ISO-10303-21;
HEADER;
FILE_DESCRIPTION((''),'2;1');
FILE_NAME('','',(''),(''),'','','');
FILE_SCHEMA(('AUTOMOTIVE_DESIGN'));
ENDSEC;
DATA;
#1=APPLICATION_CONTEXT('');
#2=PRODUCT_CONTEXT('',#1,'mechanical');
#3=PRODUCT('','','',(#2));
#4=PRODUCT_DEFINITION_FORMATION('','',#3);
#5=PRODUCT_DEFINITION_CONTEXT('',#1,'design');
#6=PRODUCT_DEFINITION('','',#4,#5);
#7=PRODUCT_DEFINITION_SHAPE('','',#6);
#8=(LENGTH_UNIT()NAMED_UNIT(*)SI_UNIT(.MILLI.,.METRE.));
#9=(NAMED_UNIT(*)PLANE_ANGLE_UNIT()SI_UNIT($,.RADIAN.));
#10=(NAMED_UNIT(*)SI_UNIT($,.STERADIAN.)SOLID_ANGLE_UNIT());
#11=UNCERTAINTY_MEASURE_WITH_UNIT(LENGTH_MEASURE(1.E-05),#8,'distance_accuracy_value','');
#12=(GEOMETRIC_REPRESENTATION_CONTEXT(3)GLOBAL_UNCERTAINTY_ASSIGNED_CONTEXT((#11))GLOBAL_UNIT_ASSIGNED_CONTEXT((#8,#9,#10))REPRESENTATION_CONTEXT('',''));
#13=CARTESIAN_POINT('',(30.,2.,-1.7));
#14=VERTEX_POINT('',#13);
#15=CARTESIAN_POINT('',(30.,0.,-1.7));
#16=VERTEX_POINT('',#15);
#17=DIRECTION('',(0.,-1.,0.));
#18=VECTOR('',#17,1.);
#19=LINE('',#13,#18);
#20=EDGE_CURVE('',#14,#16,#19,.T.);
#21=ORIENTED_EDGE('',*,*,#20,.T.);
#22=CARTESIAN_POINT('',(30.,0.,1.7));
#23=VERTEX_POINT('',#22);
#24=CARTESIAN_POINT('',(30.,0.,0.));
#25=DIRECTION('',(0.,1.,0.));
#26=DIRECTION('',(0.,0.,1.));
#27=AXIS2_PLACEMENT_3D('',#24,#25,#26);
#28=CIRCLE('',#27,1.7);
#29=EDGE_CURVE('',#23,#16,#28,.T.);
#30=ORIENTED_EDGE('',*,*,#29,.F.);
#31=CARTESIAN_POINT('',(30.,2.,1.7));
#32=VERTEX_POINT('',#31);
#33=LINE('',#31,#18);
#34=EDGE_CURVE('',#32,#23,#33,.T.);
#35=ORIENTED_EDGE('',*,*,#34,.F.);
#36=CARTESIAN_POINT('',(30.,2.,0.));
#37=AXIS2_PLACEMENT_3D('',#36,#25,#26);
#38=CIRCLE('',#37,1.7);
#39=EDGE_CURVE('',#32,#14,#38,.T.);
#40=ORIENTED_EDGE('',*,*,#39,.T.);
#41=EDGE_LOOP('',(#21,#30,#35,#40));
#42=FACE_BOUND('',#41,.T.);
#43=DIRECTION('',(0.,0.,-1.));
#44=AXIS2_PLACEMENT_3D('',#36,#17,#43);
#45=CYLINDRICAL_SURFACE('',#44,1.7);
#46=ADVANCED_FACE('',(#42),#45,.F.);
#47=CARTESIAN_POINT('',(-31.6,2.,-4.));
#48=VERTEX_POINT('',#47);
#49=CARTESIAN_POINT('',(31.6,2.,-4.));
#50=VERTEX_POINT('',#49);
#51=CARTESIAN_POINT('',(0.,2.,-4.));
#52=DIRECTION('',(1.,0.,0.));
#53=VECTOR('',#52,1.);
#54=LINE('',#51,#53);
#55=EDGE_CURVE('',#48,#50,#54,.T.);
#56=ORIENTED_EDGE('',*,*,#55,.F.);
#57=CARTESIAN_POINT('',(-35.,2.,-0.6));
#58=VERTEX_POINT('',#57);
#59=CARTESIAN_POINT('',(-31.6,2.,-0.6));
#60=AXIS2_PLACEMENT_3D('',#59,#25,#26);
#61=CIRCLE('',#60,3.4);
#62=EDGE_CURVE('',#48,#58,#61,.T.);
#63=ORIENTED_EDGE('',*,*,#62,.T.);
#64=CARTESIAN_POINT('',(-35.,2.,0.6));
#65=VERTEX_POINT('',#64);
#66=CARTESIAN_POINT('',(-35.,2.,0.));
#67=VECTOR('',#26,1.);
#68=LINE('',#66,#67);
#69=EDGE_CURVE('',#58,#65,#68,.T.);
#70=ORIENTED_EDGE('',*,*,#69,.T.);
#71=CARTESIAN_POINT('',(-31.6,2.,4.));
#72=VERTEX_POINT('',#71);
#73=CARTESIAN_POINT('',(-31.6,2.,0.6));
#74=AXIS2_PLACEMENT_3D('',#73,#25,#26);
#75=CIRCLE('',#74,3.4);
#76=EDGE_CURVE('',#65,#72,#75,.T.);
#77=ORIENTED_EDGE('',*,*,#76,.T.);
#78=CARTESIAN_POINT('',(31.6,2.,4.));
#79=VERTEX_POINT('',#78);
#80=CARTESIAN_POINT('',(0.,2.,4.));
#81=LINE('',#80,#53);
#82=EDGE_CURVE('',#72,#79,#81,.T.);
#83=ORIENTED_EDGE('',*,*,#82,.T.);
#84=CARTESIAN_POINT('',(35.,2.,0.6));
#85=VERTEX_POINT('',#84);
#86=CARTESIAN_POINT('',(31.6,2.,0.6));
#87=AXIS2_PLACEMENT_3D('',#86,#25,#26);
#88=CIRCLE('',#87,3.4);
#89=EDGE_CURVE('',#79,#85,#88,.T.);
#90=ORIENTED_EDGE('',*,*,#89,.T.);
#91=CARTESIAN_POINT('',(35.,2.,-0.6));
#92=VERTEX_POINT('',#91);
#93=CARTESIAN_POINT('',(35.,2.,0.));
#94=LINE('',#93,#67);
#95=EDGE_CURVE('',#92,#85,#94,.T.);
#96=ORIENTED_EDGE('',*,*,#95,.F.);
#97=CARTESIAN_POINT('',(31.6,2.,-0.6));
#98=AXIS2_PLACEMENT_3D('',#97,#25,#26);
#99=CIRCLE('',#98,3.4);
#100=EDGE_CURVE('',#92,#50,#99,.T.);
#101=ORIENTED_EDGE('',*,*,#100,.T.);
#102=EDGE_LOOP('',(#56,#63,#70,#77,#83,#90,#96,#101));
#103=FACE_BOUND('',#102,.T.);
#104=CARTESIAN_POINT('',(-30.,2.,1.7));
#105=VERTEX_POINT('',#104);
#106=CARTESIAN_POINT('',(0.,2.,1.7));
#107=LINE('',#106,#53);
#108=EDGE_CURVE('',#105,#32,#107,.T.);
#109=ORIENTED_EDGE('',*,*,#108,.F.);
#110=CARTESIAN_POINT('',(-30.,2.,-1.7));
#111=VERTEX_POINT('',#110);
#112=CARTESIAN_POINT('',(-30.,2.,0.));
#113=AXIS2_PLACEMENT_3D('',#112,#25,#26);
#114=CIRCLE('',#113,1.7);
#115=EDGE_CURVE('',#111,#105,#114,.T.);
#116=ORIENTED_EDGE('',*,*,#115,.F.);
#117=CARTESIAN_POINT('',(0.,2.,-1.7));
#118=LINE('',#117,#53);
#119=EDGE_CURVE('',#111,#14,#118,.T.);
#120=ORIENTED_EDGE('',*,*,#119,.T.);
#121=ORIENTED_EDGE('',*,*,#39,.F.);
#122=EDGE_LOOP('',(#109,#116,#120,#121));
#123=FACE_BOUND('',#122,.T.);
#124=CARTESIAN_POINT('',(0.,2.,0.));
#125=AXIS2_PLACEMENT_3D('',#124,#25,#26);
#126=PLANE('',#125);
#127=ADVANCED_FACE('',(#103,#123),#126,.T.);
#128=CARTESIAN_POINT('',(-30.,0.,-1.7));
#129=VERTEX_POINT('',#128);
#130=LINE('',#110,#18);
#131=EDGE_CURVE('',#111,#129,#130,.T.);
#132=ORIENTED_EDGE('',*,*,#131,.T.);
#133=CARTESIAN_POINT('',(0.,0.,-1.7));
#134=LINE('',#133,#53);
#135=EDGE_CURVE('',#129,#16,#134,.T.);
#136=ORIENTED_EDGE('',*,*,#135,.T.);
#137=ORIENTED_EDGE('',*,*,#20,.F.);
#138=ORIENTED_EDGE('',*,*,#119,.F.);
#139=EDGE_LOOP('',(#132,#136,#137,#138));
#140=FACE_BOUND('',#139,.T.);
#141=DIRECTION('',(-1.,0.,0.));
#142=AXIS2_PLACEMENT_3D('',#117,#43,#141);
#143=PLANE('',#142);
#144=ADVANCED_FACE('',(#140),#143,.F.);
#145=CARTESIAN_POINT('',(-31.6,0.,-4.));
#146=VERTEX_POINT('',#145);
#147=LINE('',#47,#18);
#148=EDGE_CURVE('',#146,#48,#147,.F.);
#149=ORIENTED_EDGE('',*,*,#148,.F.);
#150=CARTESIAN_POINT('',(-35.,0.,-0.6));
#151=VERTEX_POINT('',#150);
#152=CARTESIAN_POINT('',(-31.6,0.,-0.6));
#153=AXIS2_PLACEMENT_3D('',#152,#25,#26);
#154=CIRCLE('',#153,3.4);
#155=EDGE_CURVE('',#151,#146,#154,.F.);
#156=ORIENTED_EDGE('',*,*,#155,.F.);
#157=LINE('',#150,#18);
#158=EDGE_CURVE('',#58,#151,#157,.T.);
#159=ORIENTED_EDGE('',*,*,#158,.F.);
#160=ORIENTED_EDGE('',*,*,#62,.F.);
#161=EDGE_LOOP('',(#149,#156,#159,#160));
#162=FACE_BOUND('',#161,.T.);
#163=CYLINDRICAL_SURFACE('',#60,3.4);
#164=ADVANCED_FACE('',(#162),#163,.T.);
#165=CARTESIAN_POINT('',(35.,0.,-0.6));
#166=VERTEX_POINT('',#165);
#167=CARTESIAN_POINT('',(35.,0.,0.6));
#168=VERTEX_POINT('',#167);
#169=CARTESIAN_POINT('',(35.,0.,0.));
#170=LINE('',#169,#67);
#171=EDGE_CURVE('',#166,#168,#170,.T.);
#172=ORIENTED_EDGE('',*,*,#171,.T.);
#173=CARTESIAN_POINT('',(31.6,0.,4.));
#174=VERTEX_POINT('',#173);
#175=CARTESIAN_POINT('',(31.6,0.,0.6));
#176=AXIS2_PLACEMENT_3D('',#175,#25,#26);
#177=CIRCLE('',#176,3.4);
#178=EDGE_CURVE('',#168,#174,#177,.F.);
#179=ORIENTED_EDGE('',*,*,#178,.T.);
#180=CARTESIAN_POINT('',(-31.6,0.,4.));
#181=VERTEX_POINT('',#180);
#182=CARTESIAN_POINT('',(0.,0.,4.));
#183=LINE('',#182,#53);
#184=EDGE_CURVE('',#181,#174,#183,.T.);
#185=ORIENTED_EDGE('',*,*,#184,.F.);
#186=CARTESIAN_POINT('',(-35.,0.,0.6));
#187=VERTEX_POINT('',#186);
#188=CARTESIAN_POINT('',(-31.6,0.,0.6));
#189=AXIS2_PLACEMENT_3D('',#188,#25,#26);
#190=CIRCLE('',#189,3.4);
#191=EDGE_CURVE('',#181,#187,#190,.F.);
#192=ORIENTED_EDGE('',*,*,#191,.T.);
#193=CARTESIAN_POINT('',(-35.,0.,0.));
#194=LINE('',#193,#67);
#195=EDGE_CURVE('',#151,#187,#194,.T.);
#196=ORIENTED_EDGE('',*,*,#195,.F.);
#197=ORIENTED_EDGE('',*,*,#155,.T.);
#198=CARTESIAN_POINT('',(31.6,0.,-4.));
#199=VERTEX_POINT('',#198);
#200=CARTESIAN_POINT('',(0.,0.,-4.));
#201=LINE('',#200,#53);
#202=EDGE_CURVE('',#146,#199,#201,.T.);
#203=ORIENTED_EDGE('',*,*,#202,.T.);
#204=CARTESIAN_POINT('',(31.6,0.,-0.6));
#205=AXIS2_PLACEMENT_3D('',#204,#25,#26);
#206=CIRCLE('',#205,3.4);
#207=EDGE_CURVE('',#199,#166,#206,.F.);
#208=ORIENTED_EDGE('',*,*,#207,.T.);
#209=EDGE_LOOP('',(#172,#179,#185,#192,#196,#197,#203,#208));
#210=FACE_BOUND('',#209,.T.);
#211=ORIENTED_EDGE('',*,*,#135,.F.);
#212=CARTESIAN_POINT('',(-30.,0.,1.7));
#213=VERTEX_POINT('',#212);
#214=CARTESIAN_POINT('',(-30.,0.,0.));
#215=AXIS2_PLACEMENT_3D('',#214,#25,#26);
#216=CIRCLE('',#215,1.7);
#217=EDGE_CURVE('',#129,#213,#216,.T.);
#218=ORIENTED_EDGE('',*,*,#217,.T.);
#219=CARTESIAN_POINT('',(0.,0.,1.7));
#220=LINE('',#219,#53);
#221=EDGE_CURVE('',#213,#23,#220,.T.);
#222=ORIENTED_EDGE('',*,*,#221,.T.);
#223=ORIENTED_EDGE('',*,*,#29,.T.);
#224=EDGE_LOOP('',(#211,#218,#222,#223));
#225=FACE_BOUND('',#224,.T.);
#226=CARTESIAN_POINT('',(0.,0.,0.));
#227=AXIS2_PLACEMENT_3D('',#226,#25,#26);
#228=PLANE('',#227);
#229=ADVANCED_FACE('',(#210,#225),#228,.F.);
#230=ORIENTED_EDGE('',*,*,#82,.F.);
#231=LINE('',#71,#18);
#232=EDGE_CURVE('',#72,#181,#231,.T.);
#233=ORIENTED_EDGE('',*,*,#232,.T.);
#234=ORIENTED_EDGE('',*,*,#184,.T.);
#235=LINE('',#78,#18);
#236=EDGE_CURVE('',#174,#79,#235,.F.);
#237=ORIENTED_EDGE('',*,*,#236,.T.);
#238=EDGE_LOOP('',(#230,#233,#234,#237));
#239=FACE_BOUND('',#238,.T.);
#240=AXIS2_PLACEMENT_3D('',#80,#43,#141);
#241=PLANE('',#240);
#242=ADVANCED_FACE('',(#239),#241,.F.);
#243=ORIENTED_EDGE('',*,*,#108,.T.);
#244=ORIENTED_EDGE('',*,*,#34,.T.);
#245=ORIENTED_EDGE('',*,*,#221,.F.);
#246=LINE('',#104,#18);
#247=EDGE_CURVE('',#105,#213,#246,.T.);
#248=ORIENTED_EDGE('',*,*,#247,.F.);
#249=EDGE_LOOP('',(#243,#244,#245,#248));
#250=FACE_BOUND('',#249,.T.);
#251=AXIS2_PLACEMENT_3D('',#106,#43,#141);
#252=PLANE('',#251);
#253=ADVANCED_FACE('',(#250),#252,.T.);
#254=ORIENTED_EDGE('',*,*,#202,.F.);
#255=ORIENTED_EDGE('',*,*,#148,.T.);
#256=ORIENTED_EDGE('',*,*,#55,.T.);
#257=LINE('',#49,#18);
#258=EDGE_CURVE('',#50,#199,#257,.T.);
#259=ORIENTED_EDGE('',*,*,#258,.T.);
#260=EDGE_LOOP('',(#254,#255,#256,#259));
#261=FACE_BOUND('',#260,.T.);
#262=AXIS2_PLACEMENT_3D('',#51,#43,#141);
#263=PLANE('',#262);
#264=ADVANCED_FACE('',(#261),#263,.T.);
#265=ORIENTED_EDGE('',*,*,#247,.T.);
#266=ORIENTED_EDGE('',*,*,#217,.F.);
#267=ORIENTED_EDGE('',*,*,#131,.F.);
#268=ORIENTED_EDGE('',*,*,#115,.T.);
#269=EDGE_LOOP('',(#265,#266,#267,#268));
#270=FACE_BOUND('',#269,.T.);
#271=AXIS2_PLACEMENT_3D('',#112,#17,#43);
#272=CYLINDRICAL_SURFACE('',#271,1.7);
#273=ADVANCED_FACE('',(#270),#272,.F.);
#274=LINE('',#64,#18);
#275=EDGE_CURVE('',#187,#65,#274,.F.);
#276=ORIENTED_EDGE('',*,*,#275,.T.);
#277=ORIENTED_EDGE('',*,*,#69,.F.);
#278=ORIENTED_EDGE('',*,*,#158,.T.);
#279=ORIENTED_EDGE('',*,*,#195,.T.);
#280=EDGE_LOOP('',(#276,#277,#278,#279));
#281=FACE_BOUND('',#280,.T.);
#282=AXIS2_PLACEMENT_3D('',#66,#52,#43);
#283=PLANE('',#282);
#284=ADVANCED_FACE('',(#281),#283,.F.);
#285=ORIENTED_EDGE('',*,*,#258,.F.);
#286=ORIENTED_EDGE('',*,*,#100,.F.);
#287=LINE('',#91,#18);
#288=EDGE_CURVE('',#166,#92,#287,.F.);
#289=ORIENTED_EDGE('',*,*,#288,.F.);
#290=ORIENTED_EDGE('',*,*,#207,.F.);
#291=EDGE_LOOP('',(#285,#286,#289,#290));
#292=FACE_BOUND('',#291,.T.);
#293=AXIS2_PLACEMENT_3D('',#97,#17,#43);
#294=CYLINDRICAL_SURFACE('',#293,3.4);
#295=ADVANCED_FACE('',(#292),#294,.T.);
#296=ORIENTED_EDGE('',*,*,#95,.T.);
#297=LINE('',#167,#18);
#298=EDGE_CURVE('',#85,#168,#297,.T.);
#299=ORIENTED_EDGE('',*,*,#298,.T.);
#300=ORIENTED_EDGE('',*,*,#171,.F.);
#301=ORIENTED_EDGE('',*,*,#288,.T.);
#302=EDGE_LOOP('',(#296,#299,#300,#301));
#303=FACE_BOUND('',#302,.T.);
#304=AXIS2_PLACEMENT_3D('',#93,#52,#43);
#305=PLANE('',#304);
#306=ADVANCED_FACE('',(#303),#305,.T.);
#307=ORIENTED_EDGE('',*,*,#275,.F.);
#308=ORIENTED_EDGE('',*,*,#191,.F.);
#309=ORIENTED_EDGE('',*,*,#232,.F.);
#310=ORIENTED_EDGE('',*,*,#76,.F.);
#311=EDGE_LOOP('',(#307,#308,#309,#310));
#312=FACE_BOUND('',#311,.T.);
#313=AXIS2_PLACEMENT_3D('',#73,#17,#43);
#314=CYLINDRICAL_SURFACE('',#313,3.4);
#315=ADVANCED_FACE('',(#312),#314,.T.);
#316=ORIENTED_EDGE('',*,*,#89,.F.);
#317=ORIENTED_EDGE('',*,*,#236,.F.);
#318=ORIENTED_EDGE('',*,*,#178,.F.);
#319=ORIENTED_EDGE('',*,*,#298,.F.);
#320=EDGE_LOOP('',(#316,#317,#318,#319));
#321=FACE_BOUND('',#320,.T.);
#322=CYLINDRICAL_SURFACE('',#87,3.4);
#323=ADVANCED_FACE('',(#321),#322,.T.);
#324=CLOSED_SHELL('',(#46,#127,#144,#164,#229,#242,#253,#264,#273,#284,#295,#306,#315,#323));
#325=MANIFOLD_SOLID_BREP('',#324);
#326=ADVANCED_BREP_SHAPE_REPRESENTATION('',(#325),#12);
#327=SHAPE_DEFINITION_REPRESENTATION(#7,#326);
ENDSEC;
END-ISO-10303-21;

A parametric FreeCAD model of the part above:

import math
import FreeCAD as App
import Part
import Sketcher


def edges_at(feature, points):
    """Names of the edges that pass closest to the given points."""
    edges = feature.Shape.Edges
    near = lambda p: min(range(len(edges)), key=lambda i: edges[i].distToShape(Part.Vertex(*p))[0])
    return sorted({f"Edge{near(p) + 1}" for p in points})


def add_polygon(sketch, points):
    """Adds a closed chain of lines whose ends are joined by coincident constraints."""
    first, n = sketch.GeometryCount, len(points)
    for a, b in zip(points, points[1:] + points[:1]):
        sketch.addGeometry(Part.LineSegment(App.Vector(*a, 0), App.Vector(*b, 0)), False)
    for i in range(n):
        sketch.addConstraint(Sketcher.Constraint("Coincident", first + i, 2, first + (i + 1) % n, 1))

doc = App.newDocument("Part")
body = doc.addObject("PartDesign::Body", "Body")

sketch1 = doc.addObject("Sketcher::SketchObject", "Sketch")
body.addObject(sketch1)
sketch1.AttachmentSupport = (doc.XZ_Plane, [""])
sketch1.MapMode = "FlatFace"
add_polygon(sketch1, [(-35, -4), (-35, 4), (35, 4), (35, -4)])
sketch1.addGeometry(Part.LineSegment(App.Vector(30, 1.7, 0), App.Vector(-30, 1.7, 0)), False)
sketch1.addGeometry(Part.ArcOfCircle(Part.Circle(App.Vector(-30, 0, 0), App.Vector(0, 0, 1), 1.7), math.radians(90), math.radians(270)), False)
sketch1.addGeometry(Part.LineSegment(App.Vector(-30, -1.7, 0), App.Vector(30, -1.7, 0)), False)
sketch1.addGeometry(Part.ArcOfCircle(Part.Circle(App.Vector(30, 0, 0), App.Vector(0, 0, 1), 1.7), math.radians(-90), math.radians(0)), False)
sketch1.addGeometry(Part.ArcOfCircle(Part.Circle(App.Vector(30, 0, 0), App.Vector(0, 0, 1), 1.7), math.radians(0), math.radians(90)), False)
sketch1.addConstraint([
    Sketcher.Constraint("Tangent", 4, 2, 5, 1),
    Sketcher.Constraint("Tangent", 5, 2, 6, 1),
    Sketcher.Constraint("Tangent", 6, 2, 7, 1),
    Sketcher.Constraint("Tangent", 7, 2, 8, 1),
    Sketcher.Constraint("Tangent", 8, 2, 4, 1),
    Sketcher.Constraint("Vertical", 0),
    Sketcher.Constraint("Horizontal", 1),
    Sketcher.Constraint("Vertical", 2),
    Sketcher.Constraint("Horizontal", 3),
    Sketcher.Constraint("Horizontal", 4),
    Sketcher.Constraint("Horizontal", 6),
    Sketcher.Constraint("Equal", 5, 7),
    Sketcher.Constraint("Symmetric", 5, 3, 7, 3, -1, 1),
    Sketcher.Constraint("Symmetric", 0, 2, 2, 2, -1, 1),
    Sketcher.Constraint("PointOnObject", 7, 2, -1),
    Sketcher.Constraint("Radius", 5, 1.7),
    Sketcher.Constraint("DistanceX", 1, 1, 1, 2, 70.0),
    Sketcher.Constraint("DistanceX", 4, 2, 4, 1, 60.0),
    Sketcher.Constraint("DistanceY", 0, 1, 0, 2, 8.0),
])
pad1 = doc.addObject("PartDesign::Pad", "Pad")
body.addObject(pad1)
pad1.Profile = sketch1
pad1.Length = 2
pad1.Reversed = True
doc.recompute()

fillet = doc.addObject("PartDesign::Fillet", "Fillet")
body.addObject(fillet)
fillet.Base = (pad1, edges_at(pad1, [
    (35, 1, 4),
    (-35, 1, 4),
    (-35, 1, -4),
    (35, 1, -4),
]))
fillet.Radius = 3.4

doc.recompute()
